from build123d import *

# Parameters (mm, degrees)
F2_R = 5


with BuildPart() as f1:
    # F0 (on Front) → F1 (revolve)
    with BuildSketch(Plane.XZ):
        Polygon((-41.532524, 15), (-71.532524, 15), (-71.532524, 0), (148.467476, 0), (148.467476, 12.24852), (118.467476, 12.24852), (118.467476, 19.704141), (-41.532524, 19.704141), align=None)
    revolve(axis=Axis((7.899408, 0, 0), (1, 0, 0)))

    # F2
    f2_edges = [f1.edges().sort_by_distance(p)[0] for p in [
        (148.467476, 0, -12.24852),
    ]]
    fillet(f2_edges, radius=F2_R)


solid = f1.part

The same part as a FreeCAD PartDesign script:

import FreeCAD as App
import Part
import Sketcher

V = App.Vector
Q = App.Units.Quantity


def edges_at(feature, points):
    """Names of the edges that pass closest to the given points."""
    edges = feature.Shape.Edges
    near = lambda p: min(range(len(edges)), key=lambda i: edges[i].distToShape(Part.Vertex(*p))[0])
    return sorted({f"Edge{near(p) + 1}" for p in points})


def add_polygon(sketch, points):
    """Adds a closed chain of lines whose ends are joined by coincident constraints."""
    first, n = sketch.GeometryCount, len(points)
    for a, b in zip(points, points[1:] + points[:1]):
        sketch.addGeometry(Part.LineSegment(App.Vector(*a, 0), App.Vector(*b, 0)), False)
    for i in range(n):
        sketch.addConstraint(Sketcher.Constraint("Coincident", first + i, 2, first + (i + 1) % n, 1))

doc = App.newDocument("Part")
params = doc.addObject("Spreadsheet::Sheet", "Params")
for row, (alias, value) in enumerate([
    ("sketch1_width", "30 mm"),
    ("sketch1_width2", "220 mm"),
    ("sketch1_height", "15 mm"),
    ("revolution_angle", "360 deg"),
    ("fillet_radius", "5 mm"),
], start=1):
    params.set(f"A{row}", alias)
    params.set(f"B{row}", "=" + value)
    params.setAlias(f"B{row}", alias)

body = doc.addObject("PartDesign::Body", "Body")

sketch1 = body.newObject("Sketcher::SketchObject", "Sketch")
sketch1.AttachmentSupport = (doc.getObject("XZ_Plane"), [""])
sketch1.MapMode = "FlatFace"
add_polygon(sketch1, [(-41.5, 15), (-71.5, 15), (-71.5, 0), (148.5, 0), (148.5, 12.2), (118.5, 12.2), (118.5, 19.7), (-41.5, 19.7)])
sketch1.addConstraint(Sketcher.Constraint("Horizontal", 0))
sketch1.addConstraint(Sketcher.Constraint("Vertical", 1))
sketch1.addConstraint(Sketcher.Constraint("Horizontal", 2))
sketch1.addConstraint(Sketcher.Constraint("Vertical", 3))
sketch1.addConstraint(Sketcher.Constraint("Horizontal", 4))
sketch1.addConstraint(Sketcher.Constraint("Vertical", 5))
sketch1.addConstraint(Sketcher.Constraint("Horizontal", 6))
sketch1.addConstraint(Sketcher.Constraint("Vertical", 7))
sketch1.addConstraint(Sketcher.Constraint("PointOnObject", 1, 2, -1))
sketch1.addConstraint(Sketcher.Constraint("Equal", 0, 4))
sketch1.addConstraint(Sketcher.Constraint("DistanceX", 0, 2, 0, 1, Q("30 mm")))
sketch1.addConstraint(Sketcher.Constraint("DistanceX", 2, 1, 2, 2, Q("220 mm")))
sketch1.addConstraint(Sketcher.Constraint("DistanceY", 1, 2, 1, 1, Q("15 mm")))
sketch1.addConstraint(Sketcher.Constraint("DistanceY", 3, 1, 3, 2, Q("12.24852 mm")))
sketch1.addConstraint(Sketcher.Constraint("DistanceY", 5, 1, 5, 2, Q("7.455621 mm")))
sketch1.addConstraint(Sketcher.Constraint("DistanceX", 0, 2, -1, 1, Q("71.532524 mm")))
sketch1.setExpression("Constraints[18]", "Params.sketch1_width")
sketch1.setExpression("Constraints[19]", "Params.sketch1_width2")
sketch1.setExpression("Constraints[20]", "Params.sketch1_height")
revolution = body.newObject("PartDesign::Revolution", "Revolution")
revolution.Profile = sketch1
revolution.ReferenceAxis = (sketch1, ["H_Axis"])
revolution.setExpression("Angle", "Params.revolution_angle")
doc.recompute()

fillet = body.newObject("PartDesign::Fillet", "Fillet")
fillet.Base = (revolution, edges_at(revolution, [(148.467, 0, -12.249)]))
fillet.setExpression("Radius", "Params.fillet_radius")

doc.recompute()
